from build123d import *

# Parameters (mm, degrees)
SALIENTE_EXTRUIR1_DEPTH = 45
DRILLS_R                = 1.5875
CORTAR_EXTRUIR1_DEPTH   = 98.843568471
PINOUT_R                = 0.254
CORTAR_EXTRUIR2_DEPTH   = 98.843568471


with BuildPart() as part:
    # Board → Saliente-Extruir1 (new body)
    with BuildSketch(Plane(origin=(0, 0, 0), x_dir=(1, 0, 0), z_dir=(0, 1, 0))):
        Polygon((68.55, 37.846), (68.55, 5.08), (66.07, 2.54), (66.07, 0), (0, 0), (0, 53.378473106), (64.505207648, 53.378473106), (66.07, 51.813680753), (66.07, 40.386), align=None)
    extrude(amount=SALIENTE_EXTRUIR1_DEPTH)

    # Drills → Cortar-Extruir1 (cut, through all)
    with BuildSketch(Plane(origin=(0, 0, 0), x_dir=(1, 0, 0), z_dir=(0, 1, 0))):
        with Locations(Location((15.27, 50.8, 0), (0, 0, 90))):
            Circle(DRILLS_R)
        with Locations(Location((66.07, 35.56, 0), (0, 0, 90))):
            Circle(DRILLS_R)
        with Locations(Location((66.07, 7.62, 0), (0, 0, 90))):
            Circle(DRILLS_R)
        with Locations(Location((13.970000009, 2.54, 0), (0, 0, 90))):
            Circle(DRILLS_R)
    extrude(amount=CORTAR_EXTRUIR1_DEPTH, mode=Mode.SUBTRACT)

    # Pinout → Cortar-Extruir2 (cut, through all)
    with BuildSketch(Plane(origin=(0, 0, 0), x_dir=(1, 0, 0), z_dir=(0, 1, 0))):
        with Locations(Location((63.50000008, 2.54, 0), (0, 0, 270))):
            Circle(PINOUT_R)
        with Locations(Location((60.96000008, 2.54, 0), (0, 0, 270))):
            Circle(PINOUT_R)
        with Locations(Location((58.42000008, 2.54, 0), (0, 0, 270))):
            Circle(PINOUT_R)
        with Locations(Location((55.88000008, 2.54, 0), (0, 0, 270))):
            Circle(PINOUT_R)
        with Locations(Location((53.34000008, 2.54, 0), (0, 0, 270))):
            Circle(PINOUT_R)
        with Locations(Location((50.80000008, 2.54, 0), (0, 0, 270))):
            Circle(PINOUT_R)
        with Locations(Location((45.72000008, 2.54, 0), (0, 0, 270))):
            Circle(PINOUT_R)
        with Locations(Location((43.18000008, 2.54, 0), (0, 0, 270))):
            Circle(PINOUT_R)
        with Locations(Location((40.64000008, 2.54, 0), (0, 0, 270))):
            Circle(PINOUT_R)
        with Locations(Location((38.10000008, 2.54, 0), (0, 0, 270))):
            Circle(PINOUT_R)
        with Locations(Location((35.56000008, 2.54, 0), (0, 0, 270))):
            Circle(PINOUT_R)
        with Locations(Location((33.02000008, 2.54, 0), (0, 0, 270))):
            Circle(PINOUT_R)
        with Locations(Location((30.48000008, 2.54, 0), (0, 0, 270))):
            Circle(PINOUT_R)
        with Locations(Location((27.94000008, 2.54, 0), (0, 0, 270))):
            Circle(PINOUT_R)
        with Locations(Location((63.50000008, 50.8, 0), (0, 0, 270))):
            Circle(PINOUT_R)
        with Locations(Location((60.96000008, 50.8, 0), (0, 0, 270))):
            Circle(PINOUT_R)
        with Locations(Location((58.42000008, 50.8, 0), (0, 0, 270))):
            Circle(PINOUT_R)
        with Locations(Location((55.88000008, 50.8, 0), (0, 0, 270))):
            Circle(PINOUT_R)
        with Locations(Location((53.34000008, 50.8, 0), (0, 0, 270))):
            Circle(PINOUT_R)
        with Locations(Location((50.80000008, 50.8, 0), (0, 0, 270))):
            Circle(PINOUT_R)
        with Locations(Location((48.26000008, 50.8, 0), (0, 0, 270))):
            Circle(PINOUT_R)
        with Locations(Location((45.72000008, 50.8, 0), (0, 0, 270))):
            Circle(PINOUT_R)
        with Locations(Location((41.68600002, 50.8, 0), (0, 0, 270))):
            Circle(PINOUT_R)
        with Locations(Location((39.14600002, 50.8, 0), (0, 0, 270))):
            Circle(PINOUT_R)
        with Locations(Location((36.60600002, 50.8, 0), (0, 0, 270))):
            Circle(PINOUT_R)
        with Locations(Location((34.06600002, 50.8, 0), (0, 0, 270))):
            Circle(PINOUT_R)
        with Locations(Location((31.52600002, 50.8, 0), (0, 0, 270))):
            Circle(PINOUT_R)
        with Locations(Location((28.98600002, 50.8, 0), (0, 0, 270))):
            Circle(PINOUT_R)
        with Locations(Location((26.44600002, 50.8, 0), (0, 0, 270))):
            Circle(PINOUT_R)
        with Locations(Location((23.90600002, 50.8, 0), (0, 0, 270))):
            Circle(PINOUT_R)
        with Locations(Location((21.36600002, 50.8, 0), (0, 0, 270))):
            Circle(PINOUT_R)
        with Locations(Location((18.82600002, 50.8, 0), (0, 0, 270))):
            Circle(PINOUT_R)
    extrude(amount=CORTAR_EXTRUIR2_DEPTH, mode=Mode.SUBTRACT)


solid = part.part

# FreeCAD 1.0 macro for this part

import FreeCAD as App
import Part
import Sketcher
Q = App.Units.Quantity


def add_polygon(sketch, points):
    """Adds a closed chain of lines whose ends are joined by coincident constraints."""
    first, n = sketch.GeometryCount, len(points)
    for a, b in zip(points, points[1:] + points[:1]):
        sketch.addGeometry(Part.LineSegment(App.Vector(*a, 0), App.Vector(*b, 0)), False)
    for i in range(n):
        sketch.addConstraint(Sketcher.Constraint("Coincident", first + i, 2, first + (i + 1) % n, 1))

doc = App.newDocument("Part")
body = doc.addObject("PartDesign::Body", "Body")

# Sketch on XZ plane
sketch1 = body.newObject("Sketcher::SketchObject", "Sketch")
sketch1.AttachmentSupport = (doc.getObject("XZ_Plane"), [""])
sketch1.MapMode = "FlatFace"
add_polygon(sketch1, [(68.5, -5.1), (68.5, -37.8), (66.1, -40.4), (66.1, -51.8), (64.5, -53.4), (0, -53.4), (0, 0), (66.1, 0), (66.1, -2.5)])  # lines 0-8
sketch1.addConstraint([
    Sketcher.Constraint("Vertical", 0),
    Sketcher.Constraint("Vertical", 2),
    Sketcher.Constraint("Horizontal", 4),
    Sketcher.Constraint("Vertical", 5),
    Sketcher.Constraint("Horizontal", 6),
    Sketcher.Constraint("Vertical", 7),
    Sketcher.Constraint("Coincident", 5, 2, -1, 1),
    Sketcher.Constraint("Vertical", 2, 2, 6, 2),
    Sketcher.Constraint("Equal", 1, 8),
    Sketcher.Constraint("DistanceY", 7, 2, 7, 1, Q("0.1 in")),
    Sketcher.Constraint("Angle", 3, Q("-135 deg")),
    Sketcher.Constraint("DistanceY", 0, 2, 0, 1, Q("1.29 in")),
    Sketcher.Constraint("DistanceY", 8, 2, -1, 1, Q("0.2 in")),
    Sketcher.Constraint("DistanceX", 6, 1, 6, 2, Q("66.07 mm")),
    Sketcher.Constraint("DistanceY", 2, 2, 2, 1, Q("11.427681 mm")),
    Sketcher.Constraint("DistanceX", -1, 1, 0, 2, Q("68.55 mm")),
    Sketcher.Constraint("Distance", 3, Q("2.212951 mm")),
])
pad1 = body.newObject("PartDesign::Pad", "Pad")
pad1.Profile = sketch1
pad1.Length = 45
pad1.Reversed = True

# Sketch on XZ plane
sketch2 = body.newObject("Sketcher::SketchObject", "Sketch001")
sketch2.AttachmentSupport = (doc.getObject("XZ_Plane"), [""])
sketch2.MapMode = "FlatFace"
sketch2.addGeometry([
    Part.Circle(App.Vector(15.3, -50.8, 0), App.Vector(0, 0, 1), 1.6),
    Part.Circle(App.Vector(66.1, -35.6, 0), App.Vector(0, 0, 1), 1.6),
    Part.Circle(App.Vector(66.1, -7.6, 0), App.Vector(0, 0, 1), 1.6),
    Part.Circle(App.Vector(14, -2.5, 0), App.Vector(0, 0, 1), 1.6),
], False)
sketch2.addConstraint([
    Sketcher.Constraint("Equal", 0, 1),
    Sketcher.Constraint("Equal", 1, 2),
    Sketcher.Constraint("Equal", 2, 3),
    Sketcher.Constraint("Vertical", 1, 3, 2, 3),
    Sketcher.Constraint("Diameter", 0, Q("0.125 in")),
    Sketcher.Constraint("DistanceY", 0, 3, -1, 1, Q("2 in")),
    Sketcher.Constraint("DistanceX", 0, 3, 1, 3, Q("2 in")),
    Sketcher.Constraint("DistanceY", 1, 3, -1, 1, Q("1.4 in")),
    Sketcher.Constraint("DistanceY", 2, 3, -1, 1, Q("0.3 in")),
    Sketcher.Constraint("DistanceY", 3, 3, -1, 1, Q("0.1 in")),
    Sketcher.Constraint("DistanceX", -1, 1, 3, 3, Q("0.55 in")),
    Sketcher.Constraint("DistanceX", -1, 1, 0, 3, Q("15.27 mm")),
])
pocket1 = body.newObject("PartDesign::Pocket", "Pocket")
pocket1.Profile = sketch2
pocket1.Type = "ThroughAll"

# Sketch on XZ plane
sketch3 = body.newObject("Sketcher::SketchObject", "Sketch002")
sketch3.AttachmentSupport = (doc.getObject("XZ_Plane"), [""])
sketch3.MapMode = "FlatFace"
sketch3.addGeometry([
    Part.Circle(App.Vector(63.5, -2.54, 0), App.Vector(0, 0, 1), 0.25),  # 0
    Part.Circle(App.Vector(60.96, -2.54, 0), App.Vector(0, 0, 1), 0.25),  # 1
    Part.Circle(App.Vector(58.42, -2.54, 0), App.Vector(0, 0, 1), 0.25),  # 2
    Part.Circle(App.Vector(55.88, -2.54, 0), App.Vector(0, 0, 1), 0.25),  # 3
    Part.Circle(App.Vector(53.34, -2.54, 0), App.Vector(0, 0, 1), 0.25),  # 4
    Part.Circle(App.Vector(50.8, -2.54, 0), App.Vector(0, 0, 1), 0.25),  # 5
    Part.Circle(App.Vector(45.72, -2.54, 0), App.Vector(0, 0, 1), 0.25),  # 6
    Part.Circle(App.Vector(43.18, -2.54, 0), App.Vector(0, 0, 1), 0.25),  # 7
    Part.Circle(App.Vector(40.64, -2.54, 0), App.Vector(0, 0, 1), 0.25),  # 8
    Part.Circle(App.Vector(38.1, -2.54, 0), App.Vector(0, 0, 1), 0.25),  # 9
    Part.Circle(App.Vector(35.56, -2.54, 0), App.Vector(0, 0, 1), 0.25),  # 10
    Part.Circle(App.Vector(33.02, -2.54, 0), App.Vector(0, 0, 1), 0.25),  # 11
    Part.Circle(App.Vector(30.48, -2.54, 0), App.Vector(0, 0, 1), 0.25),  # 12
    Part.Circle(App.Vector(27.94, -2.54, 0), App.Vector(0, 0, 1), 0.25),  # 13
    Part.Circle(App.Vector(63.5, -50.8, 0), App.Vector(0, 0, 1), 0.25),  # 14
    Part.Circle(App.Vector(60.96, -50.8, 0), App.Vector(0, 0, 1), 0.25),  # 15
    Part.Circle(App.Vector(58.42, -50.8, 0), App.Vector(0, 0, 1), 0.25),  # 16
    Part.Circle(App.Vector(55.88, -50.8, 0), App.Vector(0, 0, 1), 0.25),  # 17
    Part.Circle(App.Vector(53.34, -50.8, 0), App.Vector(0, 0, 1), 0.25),  # 18
    Part.Circle(App.Vector(50.8, -50.8, 0), App.Vector(0, 0, 1), 0.25),  # 19
    Part.Circle(App.Vector(48.26, -50.8, 0), App.Vector(0, 0, 1), 0.25),  # 20
    Part.Circle(App.Vector(45.72, -50.8, 0), App.Vector(0, 0, 1), 0.25),  # 21
    Part.Circle(App.Vector(41.69, -50.8, 0), App.Vector(0, 0, 1), 0.25),  # 22
    Part.Circle(App.Vector(39.15, -50.8, 0), App.Vector(0, 0, 1), 0.25),  # 23
    Part.Circle(App.Vector(36.61, -50.8, 0), App.Vector(0, 0, 1), 0.25),  # 24
    Part.Circle(App.Vector(34.07, -50.8, 0), App.Vector(0, 0, 1), 0.25),  # 25
    Part.Circle(App.Vector(31.53, -50.8, 0), App.Vector(0, 0, 1), 0.25),  # 26
    Part.Circle(App.Vector(28.99, -50.8, 0), App.Vector(0, 0, 1), 0.25),  # 27
    Part.Circle(App.Vector(26.45, -50.8, 0), App.Vector(0, 0, 1), 0.25),  # 28
    Part.Circle(App.Vector(23.91, -50.8, 0), App.Vector(0, 0, 1), 0.25),  # 29
    Part.Circle(App.Vector(21.37, -50.8, 0), App.Vector(0, 0, 1), 0.25),  # 30
    Part.Circle(App.Vector(18.83, -50.8, 0), App.Vector(0, 0, 1), 0.25),  # 31
], False)
sketch3.addConstraint([
    Sketcher.Constraint("Equal", 0, 1),
    Sketcher.Constraint("Equal", 1, 2),
    Sketcher.Constraint("Equal", 2, 3),
    Sketcher.Constraint("Equal", 3, 4),
    Sketcher.Constraint("Equal", 4, 5),
    Sketcher.Constraint("Equal", 5, 6),
    Sketcher.Constraint("Equal", 6, 7),
    Sketcher.Constraint("Equal", 7, 8),
    Sketcher.Constraint("Equal", 8, 9),
    Sketcher.Constraint("Equal", 9, 10),
    Sketcher.Constraint("Equal", 10, 11),
    Sketcher.Constraint("Equal", 11, 12),
    Sketcher.Constraint("Equal", 12, 13),
    Sketcher.Constraint("Equal", 13, 14),
    Sketcher.Constraint("Equal", 14, 15),
    Sketcher.Constraint("Equal", 15, 16),
    Sketcher.Constraint("Equal", 16, 17),
    Sketcher.Constraint("Equal", 17, 18),
    Sketcher.Constraint("Equal", 18, 19),
    Sketcher.Constraint("Equal", 19, 20),
    Sketcher.Constraint("Equal", 20, 21),
    Sketcher.Constraint("Equal", 21, 22),
    Sketcher.Constraint("Equal", 22, 23),
    Sketcher.Constraint("Equal", 23, 24),
    Sketcher.Constraint("Equal", 24, 25),
    Sketcher.Constraint("Equal", 25, 26),
    Sketcher.Constraint("Equal", 26, 27),
    Sketcher.Constraint("Equal", 27, 28),
    Sketcher.Constraint("Equal", 28, 29),
    Sketcher.Constraint("Equal", 29, 30),
    Sketcher.Constraint("Equal", 30, 31),
    Sketcher.Constraint("Horizontal", 0, 3, 1, 3),
    Sketcher.Constraint("Horizontal", 1, 3, 2, 3),
    Sketcher.Constraint("Horizontal", 2, 3, 3, 3),
    Sketcher.Constraint("Horizontal", 3, 3, 4, 3),
    Sketcher.Constraint("Horizontal", 4, 3, 5, 3),
    Sketcher.Constraint("Horizontal", 5, 3, 6, 3),
    Sketcher.Constraint("Horizontal", 6, 3, 7, 3),
    Sketcher.Constraint("Horizontal", 7, 3, 8, 3),
    Sketcher.Constraint("Horizontal", 8, 3, 9, 3),
    Sketcher.Constraint("Horizontal", 9, 3, 10, 3),
    Sketcher.Constraint("Horizontal", 10, 3, 11, 3),
    Sketcher.Constraint("Horizontal", 11, 3, 12, 3),
    Sketcher.Constraint("Horizontal", 12, 3, 13, 3),
    Sketcher.Constraint("Horizontal", 14, 3, 15, 3),
    Sketcher.Constraint("Horizontal", 15, 3, 16, 3),
    Sketcher.Constraint("Horizontal", 16, 3, 17, 3),
    Sketcher.Constraint("Horizontal", 17, 3, 18, 3),
    Sketcher.Constraint("Horizontal", 18, 3, 19, 3),
    Sketcher.Constraint("Horizontal", 19, 3, 20, 3),
    Sketcher.Constraint("Horizontal", 20, 3, 21, 3),
    Sketcher.Constraint("Horizontal", 21, 3, 22, 3),
    Sketcher.Constraint("Horizontal", 22, 3, 23, 3),
    Sketcher.Constraint("Horizontal", 23, 3, 24, 3),
    Sketcher.Constraint("Horizontal", 24, 3, 25, 3),
    Sketcher.Constraint("Horizontal", 25, 3, 26, 3),
    Sketcher.Constraint("Horizontal", 26, 3, 27, 3),
    Sketcher.Constraint("Horizontal", 27, 3, 28, 3),
    Sketcher.Constraint("Horizontal", 28, 3, 29, 3),
    Sketcher.Constraint("Horizontal", 29, 3, 30, 3),
    Sketcher.Constraint("Horizontal", 30, 3, 31, 3),
    Sketcher.Constraint("Vertical", 0, 3, 14, 3),
    Sketcher.Constraint("Vertical", 1, 3, 15, 3),
    Sketcher.Constraint("Vertical", 2, 3, 16, 3),
    Sketcher.Constraint("Vertical", 3, 3, 17, 3),
    Sketcher.Constraint("Vertical", 4, 3, 18, 3),
    Sketcher.Constraint("Vertical", 5, 3, 19, 3),
    Sketcher.Constraint("Vertical", 6, 3, 21, 3),
    Sketcher.Constraint("Diameter", 0, Q("0.02 in")),
    Sketcher.Constraint("DistanceX", -1, 1, 5, 3, Q("2 in")),
    Sketcher.Constraint("DistanceY", 14, 3, -1, 1, Q("2 in")),
    Sketcher.Constraint("DistanceX", -1, 1, 0, 3, Q("2.5 in")),
    Sketcher.Constraint("DistanceY", 0, 3, -1, 1, Q("0.1 in")),
    Sketcher.Constraint("DistanceX", -1, 1, 1, 3, Q("2.4 in")),
    Sketcher.Constraint("DistanceX", -1, 1, 2, 3, Q("2.3 in")),
    Sketcher.Constraint("DistanceX", -1, 1, 3, 3, Q("2.2 in")),
    Sketcher.Constraint("DistanceX", -1, 1, 4, 3, Q("2.1 in")),
    Sketcher.Constraint("DistanceX", -1, 1, 6, 3, Q("1.8 in")),
    Sketcher.Constraint("DistanceX", -1, 1, 7, 3, Q("1.7 in")),
    Sketcher.Constraint("DistanceX", -1, 1, 8, 3, Q("1.6 in")),
    Sketcher.Constraint("DistanceX", -1, 1, 9, 3, Q("1.5 in")),
    Sketcher.Constraint("DistanceX", -1, 1, 10, 3, Q("1.4 in")),
    Sketcher.Constraint("DistanceX", -1, 1, 11, 3, Q("1.3 in")),
    Sketcher.Constraint("DistanceX", -1, 1, 12, 3, Q("1.2 in")),
    Sketcher.Constraint("DistanceX", -1, 1, 13, 3, Q("1.1 in")),
    Sketcher.Constraint("DistanceX", -1, 1, 20, 3, Q("1.9 in")),
    Sketcher.Constraint("DistanceX", 23, 3, 22, 3, Q("0.1 in")),
    Sketcher.Constraint("DistanceX", 24, 3, 23, 3, Q("0.1 in")),
    Sketcher.Constraint("DistanceX", 25, 3, 24, 3, Q("0.1 in")),
    Sketcher.Constraint("DistanceX", 26, 3, 25, 3, Q("0.1 in")),
    Sketcher.Constraint("DistanceX", 27, 3, 26, 3, Q("0.1 in")),
    Sketcher.Constraint("DistanceX", 28, 3, 27, 3, Q("0.1 in")),
    Sketcher.Constraint("DistanceX", 29, 3, 28, 3, Q("0.1 in")),
    Sketcher.Constraint("DistanceX", 30, 3, 29, 3, Q("0.1 in")),
    Sketcher.Constraint("DistanceX", 31, 3, 30, 3, Q("0.1 in")),
    Sketcher.Constraint("DistanceX", -1, 1, 22, 3, Q("41.686 mm")),
])
pocket2 = body.newObject("PartDesign::Pocket", "Pocket001")
pocket2.Profile = sketch3
pocket2.Type = "ThroughAll"

doc.recompute()
